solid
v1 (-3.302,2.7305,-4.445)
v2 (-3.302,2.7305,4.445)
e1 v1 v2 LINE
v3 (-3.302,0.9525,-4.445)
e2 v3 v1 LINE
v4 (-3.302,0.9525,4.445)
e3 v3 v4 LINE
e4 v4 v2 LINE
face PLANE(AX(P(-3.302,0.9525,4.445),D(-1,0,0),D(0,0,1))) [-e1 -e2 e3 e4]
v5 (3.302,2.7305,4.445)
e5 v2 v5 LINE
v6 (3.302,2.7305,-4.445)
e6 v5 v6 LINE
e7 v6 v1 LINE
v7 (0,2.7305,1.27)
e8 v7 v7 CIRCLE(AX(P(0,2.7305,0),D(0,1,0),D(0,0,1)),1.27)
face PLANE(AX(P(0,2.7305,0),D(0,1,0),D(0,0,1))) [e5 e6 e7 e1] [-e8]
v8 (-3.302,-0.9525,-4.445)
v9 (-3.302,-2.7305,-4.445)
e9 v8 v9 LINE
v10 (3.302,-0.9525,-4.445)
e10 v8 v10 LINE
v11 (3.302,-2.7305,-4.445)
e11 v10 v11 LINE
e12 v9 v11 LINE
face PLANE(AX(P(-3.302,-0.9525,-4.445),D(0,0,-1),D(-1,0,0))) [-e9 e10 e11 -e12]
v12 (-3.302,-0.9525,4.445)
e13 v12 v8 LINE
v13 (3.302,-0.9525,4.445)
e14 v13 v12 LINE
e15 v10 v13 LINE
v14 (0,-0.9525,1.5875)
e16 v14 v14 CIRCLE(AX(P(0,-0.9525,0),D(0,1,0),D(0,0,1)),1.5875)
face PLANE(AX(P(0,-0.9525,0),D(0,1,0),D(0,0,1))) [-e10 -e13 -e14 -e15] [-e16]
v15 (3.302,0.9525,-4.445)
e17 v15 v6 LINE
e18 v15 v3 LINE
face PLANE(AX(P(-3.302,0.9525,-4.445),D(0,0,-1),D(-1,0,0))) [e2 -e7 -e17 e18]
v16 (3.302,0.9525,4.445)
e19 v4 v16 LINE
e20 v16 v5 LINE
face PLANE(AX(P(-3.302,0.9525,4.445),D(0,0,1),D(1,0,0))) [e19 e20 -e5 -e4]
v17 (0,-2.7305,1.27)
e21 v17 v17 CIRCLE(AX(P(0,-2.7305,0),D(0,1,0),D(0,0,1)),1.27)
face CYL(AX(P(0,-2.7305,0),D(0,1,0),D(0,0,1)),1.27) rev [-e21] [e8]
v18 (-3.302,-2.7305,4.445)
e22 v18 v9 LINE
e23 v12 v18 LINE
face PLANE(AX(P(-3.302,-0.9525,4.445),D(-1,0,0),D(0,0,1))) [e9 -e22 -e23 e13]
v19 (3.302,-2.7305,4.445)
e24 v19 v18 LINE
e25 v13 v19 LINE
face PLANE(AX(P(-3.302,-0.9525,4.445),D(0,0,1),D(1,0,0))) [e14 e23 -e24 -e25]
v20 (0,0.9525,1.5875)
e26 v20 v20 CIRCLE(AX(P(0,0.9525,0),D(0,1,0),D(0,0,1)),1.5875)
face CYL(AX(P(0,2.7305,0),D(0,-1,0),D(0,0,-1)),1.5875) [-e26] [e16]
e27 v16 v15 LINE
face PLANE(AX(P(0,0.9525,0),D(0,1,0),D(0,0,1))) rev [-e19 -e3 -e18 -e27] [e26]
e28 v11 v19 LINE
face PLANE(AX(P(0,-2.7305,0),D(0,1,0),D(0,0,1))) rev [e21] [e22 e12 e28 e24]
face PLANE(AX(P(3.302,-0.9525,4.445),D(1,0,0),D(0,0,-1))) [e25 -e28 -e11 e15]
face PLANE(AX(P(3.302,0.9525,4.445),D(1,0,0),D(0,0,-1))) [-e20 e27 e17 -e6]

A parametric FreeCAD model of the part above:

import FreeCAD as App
import Part
import Sketcher
Q = App.Units.Quantity

doc = App.newDocument("Part")
params = doc.addObject("Spreadsheet::Sheet", "Params")
for row, (alias, value) in enumerate([
    ("sketch1_diameter", "0.125 in"),
    ("pad1_length", "0.215 in"),
    ("sketch2_width", "0.26 in"),
    ("sketch2_height", "0.35 in"),
    ("pad2_length", "0.07 in"),
    ("sketch3_width", "0.26 in"),
    ("sketch3_height", "0.35 in"),
    ("pad3_length", "0.07 in"),
    ("sketch4_diameter", "0.1 in"),
], start=1):
    params.set(f"A{row}", alias)
    params.set(f"B{row}", "=" + value)
    params.setAlias(f"B{row}", alias)

body = doc.addObject("PartDesign::Body", "Body")

sketch1 = body.newObject("Sketcher::SketchObject", "Sketch")
sketch1.AttachmentSupport = (doc.getObject("XZ_Plane"), [""])
sketch1.MapMode = "FlatFace"
sketch1.addGeometry(Part.Circle(App.Vector(0, 0, 0), App.Vector(0, 0, 1), 1.6), False)
sketch1.addConstraint([
    Sketcher.Constraint("Coincident", 0, 3, -1, 1),
    Sketcher.Constraint("Diameter", 0, Q("0.125 in")),
])
sketch1.setExpression("Constraints[1]", "Params.sketch1_diameter")
pad1 = body.newObject("PartDesign::Pad", "Pad")
pad1.Profile = sketch1
pad1.setExpression("Length", "Params.pad1_length")
pad1.Midplane = True

sketch2 = body.newObject("Sketcher::SketchObject", "Sketch001")
sketch2.AttachmentSupport = (doc.getObject("XZ_Plane"), [""])
sketch2.MapMode = "FlatFace"
sketch2.AttachmentOffset = App.Placement(App.Vector(0, 0, 0.1075 * 25.4), App.Rotation())
sketch2.addGeometry([
    Part.LineSegment(App.Vector(-3, 4, 0), App.Vector(-3, -4, 0)),
    Part.LineSegment(App.Vector(-3, -4, 0), App.Vector(3, -4, 0)),
    Part.LineSegment(App.Vector(3, -4, 0), App.Vector(3, 4, 0)),
    Part.LineSegment(App.Vector(3, 4, 0), App.Vector(-3, 4, 0)),
], False)
sketch2.addConstraint([
    Sketcher.Constraint("Coincident", 0, 2, 1, 1),
    Sketcher.Constraint("Coincident", 1, 2, 2, 1),
    Sketcher.Constraint("Coincident", 2, 2, 3, 1),
    Sketcher.Constraint("Coincident", 3, 2, 0, 1),
    Sketcher.Constraint("Vertical", 0),
    Sketcher.Constraint("Horizontal", 1),
    Sketcher.Constraint("Vertical", 2),
    Sketcher.Constraint("Horizontal", 3),
    Sketcher.Constraint("Symmetric", 0, 2, 2, 2, -1, 1),
    Sketcher.Constraint("DistanceX", 1, 1, 1, 2, Q("0.26 in")),
    Sketcher.Constraint("DistanceY", 0, 2, 0, 1, Q("0.35 in")),
])
sketch2.setExpression("Constraints[9]", "Params.sketch2_width")
sketch2.setExpression("Constraints[10]", "Params.sketch2_height")
pad2 = body.newObject("PartDesign::Pad", "Pad001")
pad2.Profile = sketch2
pad2.setExpression("Length", "Params.pad2_length")
pad2.Reversed = True

sketch3 = body.newObject("Sketcher::SketchObject", "Sketch002")
sketch3.AttachmentSupport = (doc.getObject("XZ_Plane"), [""])
sketch3.MapMode = "FlatFace"
sketch3.AttachmentOffset = App.Placement(App.Vector(0, 0, -0.1075 * 25.4), App.Rotation())
sketch3.addGeometry([
    Part.LineSegment(App.Vector(-3, -4, 0), App.Vector(-3, 4, 0)),
    Part.LineSegment(App.Vector(-3, 4, 0), App.Vector(3, 4, 0)),
    Part.LineSegment(App.Vector(3, 4, 0), App.Vector(3, -4, 0)),
    Part.LineSegment(App.Vector(3, -4, 0), App.Vector(-3, -4, 0)),
], False)
sketch3.addConstraint([
    Sketcher.Constraint("Coincident", 0, 2, 1, 1),
    Sketcher.Constraint("Coincident", 1, 2, 2, 1),
    Sketcher.Constraint("Coincident", 2, 2, 3, 1),
    Sketcher.Constraint("Coincident", 3, 2, 0, 1),
    Sketcher.Constraint("Vertical", 0),
    Sketcher.Constraint("Horizontal", 1),
    Sketcher.Constraint("Vertical", 2),
    Sketcher.Constraint("Horizontal", 3),
    Sketcher.Constraint("Symmetric", 0, 2, 2, 2, -1, 1),
    Sketcher.Constraint("DistanceX", 1, 1, 1, 2, Q("0.26 in")),
    Sketcher.Constraint("DistanceY", 0, 1, 0, 2, Q("0.35 in")),
])
sketch3.setExpression("Constraints[9]", "Params.sketch3_width")
sketch3.setExpression("Constraints[10]", "Params.sketch3_height")
pad3 = body.newObject("PartDesign::Pad", "Pad002")
pad3.Profile = sketch3
pad3.setExpression("Length", "Params.pad3_length")

sketch4 = body.newObject("Sketcher::SketchObject", "Sketch003")
sketch4.AttachmentSupport = (doc.getObject("XZ_Plane"), [""])
sketch4.MapMode = "FlatFace"
sketch4.AttachmentOffset = App.Placement(App.Vector(0, 0, -0.1075 * 25.4), App.Rotation())
sketch4.addGeometry(Part.Circle(App.Vector(0, 0, 0), App.Vector(0, 0, 1), 1.3), False)
sketch4.addConstraint([
    Sketcher.Constraint("Coincident", 0, 3, -1, 1),
    Sketcher.Constraint("Diameter", 0, Q("0.1 in")),
])
sketch4.setExpression("Constraints[1]", "Params.sketch4_diameter")
pocket1 = body.newObject("PartDesign::Pocket", "Pocket")
pocket1.Profile = sketch4
pocket1.Type = "ThroughAll"
pocket1.Reversed = True

doc.recompute()
